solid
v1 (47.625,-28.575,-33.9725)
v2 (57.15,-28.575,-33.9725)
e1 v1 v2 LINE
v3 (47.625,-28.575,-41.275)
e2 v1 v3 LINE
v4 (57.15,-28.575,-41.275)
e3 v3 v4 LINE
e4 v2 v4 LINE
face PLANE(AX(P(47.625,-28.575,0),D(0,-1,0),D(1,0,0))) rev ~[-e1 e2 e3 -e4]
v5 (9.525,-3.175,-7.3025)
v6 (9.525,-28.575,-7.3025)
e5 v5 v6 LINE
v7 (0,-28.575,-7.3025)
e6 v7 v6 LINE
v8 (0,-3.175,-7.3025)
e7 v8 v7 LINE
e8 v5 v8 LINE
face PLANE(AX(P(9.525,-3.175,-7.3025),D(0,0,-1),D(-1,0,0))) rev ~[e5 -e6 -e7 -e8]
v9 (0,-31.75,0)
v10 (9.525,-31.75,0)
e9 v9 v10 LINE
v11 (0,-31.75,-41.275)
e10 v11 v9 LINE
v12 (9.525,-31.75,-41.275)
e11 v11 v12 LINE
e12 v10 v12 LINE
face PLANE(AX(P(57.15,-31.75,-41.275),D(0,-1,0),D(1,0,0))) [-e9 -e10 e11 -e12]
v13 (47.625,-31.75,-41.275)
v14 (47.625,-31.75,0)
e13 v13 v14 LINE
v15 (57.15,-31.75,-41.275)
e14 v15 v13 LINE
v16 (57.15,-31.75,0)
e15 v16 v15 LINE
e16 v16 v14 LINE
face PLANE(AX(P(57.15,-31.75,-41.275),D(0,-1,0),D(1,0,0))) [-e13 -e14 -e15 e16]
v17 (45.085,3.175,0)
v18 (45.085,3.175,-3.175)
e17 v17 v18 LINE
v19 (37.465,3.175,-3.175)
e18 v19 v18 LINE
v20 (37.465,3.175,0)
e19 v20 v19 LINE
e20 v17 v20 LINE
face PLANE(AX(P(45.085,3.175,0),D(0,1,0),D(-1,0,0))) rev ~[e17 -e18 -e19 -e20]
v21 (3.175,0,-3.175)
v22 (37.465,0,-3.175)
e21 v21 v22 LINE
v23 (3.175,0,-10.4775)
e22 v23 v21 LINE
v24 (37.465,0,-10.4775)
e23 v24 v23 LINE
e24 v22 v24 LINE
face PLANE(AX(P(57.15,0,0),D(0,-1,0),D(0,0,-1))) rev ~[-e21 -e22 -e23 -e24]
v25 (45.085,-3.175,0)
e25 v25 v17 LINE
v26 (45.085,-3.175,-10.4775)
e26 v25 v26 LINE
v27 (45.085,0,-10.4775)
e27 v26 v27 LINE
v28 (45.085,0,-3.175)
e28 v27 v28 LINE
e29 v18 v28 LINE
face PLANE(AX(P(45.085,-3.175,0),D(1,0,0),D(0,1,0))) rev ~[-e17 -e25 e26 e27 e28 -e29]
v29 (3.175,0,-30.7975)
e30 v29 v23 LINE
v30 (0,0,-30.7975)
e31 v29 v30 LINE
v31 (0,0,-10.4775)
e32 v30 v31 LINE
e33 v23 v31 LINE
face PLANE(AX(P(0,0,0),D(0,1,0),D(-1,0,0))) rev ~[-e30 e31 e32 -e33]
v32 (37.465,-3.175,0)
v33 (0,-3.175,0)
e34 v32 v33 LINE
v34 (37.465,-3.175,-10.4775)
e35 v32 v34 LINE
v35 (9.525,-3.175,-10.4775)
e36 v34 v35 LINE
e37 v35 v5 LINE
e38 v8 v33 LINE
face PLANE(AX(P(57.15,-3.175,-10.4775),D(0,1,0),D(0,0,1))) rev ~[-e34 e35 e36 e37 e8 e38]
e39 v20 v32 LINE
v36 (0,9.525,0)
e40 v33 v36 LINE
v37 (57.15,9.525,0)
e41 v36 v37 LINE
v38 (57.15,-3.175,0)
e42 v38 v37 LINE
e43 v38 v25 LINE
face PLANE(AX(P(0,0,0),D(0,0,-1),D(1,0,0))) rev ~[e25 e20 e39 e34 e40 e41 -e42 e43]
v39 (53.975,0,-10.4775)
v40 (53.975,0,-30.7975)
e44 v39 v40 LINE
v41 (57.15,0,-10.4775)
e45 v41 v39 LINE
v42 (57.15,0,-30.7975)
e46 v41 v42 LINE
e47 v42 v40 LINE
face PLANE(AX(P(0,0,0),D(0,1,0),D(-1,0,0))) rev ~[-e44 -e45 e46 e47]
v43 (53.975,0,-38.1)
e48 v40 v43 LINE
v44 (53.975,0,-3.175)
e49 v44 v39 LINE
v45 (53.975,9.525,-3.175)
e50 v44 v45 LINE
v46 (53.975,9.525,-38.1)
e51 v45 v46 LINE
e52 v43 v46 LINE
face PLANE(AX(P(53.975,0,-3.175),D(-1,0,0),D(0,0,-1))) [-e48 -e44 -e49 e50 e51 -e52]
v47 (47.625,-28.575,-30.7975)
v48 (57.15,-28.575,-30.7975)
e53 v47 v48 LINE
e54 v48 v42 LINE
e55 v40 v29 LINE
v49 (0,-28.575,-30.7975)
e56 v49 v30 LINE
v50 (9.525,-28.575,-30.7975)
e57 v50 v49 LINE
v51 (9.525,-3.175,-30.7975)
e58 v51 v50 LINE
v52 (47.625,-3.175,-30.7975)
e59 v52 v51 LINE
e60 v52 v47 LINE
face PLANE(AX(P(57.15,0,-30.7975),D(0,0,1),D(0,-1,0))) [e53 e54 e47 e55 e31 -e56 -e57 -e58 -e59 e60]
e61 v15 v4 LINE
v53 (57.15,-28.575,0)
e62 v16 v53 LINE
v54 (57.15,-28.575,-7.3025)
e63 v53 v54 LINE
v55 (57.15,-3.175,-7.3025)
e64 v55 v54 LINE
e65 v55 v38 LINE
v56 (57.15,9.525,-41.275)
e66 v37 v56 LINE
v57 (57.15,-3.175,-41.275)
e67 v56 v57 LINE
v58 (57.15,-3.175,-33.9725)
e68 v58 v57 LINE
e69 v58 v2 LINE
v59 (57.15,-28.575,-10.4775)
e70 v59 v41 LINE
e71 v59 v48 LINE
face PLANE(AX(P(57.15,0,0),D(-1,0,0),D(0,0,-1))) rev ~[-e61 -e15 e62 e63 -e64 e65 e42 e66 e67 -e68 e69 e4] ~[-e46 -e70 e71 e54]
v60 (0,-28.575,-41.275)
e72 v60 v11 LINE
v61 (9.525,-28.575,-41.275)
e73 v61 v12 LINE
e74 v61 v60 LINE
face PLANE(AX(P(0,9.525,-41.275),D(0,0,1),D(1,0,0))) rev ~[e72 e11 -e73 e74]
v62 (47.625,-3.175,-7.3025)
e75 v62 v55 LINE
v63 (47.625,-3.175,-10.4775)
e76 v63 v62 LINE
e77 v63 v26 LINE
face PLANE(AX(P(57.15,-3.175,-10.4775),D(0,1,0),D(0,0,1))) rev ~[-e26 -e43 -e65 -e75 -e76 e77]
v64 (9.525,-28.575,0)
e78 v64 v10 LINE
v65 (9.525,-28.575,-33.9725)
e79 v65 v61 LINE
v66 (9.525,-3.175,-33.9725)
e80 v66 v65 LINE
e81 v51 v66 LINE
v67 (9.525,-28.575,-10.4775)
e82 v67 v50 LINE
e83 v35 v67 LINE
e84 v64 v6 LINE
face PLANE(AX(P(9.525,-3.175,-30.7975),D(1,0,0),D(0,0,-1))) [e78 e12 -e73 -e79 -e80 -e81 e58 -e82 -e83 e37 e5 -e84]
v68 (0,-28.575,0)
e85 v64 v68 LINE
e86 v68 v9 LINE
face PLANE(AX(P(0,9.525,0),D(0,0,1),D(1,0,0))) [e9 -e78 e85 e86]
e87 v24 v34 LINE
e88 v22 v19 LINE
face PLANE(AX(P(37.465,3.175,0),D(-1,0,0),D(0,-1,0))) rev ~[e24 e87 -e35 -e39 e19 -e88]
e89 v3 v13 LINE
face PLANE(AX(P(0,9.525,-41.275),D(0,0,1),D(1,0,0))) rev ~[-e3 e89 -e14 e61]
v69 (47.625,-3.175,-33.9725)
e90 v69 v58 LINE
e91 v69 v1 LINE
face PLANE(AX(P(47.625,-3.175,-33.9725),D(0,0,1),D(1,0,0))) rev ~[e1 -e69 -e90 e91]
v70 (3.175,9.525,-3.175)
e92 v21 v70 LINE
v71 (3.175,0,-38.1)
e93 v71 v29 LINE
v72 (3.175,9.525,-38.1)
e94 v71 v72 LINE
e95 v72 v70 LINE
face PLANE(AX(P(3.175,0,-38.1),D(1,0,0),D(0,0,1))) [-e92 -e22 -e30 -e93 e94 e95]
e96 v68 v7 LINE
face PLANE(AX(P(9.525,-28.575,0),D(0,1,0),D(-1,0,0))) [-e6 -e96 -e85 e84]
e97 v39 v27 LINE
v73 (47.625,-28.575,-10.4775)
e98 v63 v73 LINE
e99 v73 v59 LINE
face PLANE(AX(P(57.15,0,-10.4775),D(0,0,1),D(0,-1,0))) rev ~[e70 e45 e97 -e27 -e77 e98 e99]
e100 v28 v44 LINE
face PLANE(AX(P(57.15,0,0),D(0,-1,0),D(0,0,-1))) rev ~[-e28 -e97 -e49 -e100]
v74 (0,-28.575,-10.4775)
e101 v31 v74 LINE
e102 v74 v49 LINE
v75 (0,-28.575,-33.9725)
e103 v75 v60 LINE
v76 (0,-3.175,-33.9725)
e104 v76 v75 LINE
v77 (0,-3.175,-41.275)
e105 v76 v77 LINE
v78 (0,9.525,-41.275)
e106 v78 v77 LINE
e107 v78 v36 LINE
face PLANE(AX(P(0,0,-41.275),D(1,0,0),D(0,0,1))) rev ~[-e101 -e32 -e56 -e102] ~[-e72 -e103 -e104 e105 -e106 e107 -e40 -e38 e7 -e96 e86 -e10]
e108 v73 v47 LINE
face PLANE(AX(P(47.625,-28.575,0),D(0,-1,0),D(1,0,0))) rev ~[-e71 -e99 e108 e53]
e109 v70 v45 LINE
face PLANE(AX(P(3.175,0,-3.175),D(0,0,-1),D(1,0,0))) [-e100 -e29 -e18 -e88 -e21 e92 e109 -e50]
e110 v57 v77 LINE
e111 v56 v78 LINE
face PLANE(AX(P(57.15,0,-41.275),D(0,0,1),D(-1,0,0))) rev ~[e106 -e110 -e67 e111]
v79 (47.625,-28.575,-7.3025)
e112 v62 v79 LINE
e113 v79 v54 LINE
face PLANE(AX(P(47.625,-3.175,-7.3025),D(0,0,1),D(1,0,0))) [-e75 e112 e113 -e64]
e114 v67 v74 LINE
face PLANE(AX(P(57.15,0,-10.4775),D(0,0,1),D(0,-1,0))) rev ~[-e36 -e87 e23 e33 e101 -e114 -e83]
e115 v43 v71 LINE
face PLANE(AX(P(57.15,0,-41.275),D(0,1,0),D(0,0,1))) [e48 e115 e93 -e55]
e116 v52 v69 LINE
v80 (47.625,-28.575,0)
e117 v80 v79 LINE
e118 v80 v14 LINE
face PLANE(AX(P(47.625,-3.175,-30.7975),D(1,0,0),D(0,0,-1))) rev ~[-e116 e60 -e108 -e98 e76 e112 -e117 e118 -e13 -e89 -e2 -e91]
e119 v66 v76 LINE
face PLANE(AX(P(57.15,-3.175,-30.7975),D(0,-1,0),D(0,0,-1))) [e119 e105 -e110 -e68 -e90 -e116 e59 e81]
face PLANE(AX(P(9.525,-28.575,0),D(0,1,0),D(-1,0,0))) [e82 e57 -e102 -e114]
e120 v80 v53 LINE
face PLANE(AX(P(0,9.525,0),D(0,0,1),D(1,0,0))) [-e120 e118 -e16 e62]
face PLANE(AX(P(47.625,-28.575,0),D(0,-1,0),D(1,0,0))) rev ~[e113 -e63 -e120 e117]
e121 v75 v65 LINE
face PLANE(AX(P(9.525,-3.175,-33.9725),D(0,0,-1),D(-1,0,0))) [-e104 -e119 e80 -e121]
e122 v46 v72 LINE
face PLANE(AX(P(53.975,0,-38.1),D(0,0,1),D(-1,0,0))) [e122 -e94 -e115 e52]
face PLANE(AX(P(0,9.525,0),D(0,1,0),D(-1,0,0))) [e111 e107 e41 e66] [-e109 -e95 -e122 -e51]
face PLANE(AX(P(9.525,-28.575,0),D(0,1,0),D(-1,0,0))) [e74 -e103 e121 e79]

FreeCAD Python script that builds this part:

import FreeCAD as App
import Part
import Sketcher

V = App.Vector
Q = App.Units.Quantity

doc = App.newDocument("Part")
body = doc.addObject("PartDesign::Body", "Body")

sketch1 = body.newObject("Sketcher::SketchObject", "Sketch")
sketch1.AttachmentSupport = (doc.getObject("XZ_Plane"), [""])
sketch1.MapMode = "FlatFace"
sketch1.addGeometry(Part.LineSegment(V(0, -41, 0), V(0, 0, 0)), False)
sketch1.addGeometry(Part.LineSegment(V(0, 0, 0), V(57, 0, 0)), False)
sketch1.addGeometry(Part.LineSegment(V(57, 0, 0), V(57, -41, 0)), False)
sketch1.addGeometry(Part.LineSegment(V(57, -41, 0), V(0, -41, 0)), False)
sketch1.addGeometry(Part.LineSegment(V(54, -3, 0), V(3, -3, 0)), False)
sketch1.addGeometry(Part.LineSegment(V(3, -3, 0), V(3, -38, 0)), False)
sketch1.addGeometry(Part.LineSegment(V(3, -38, 0), V(54, -38, 0)), False)
sketch1.addGeometry(Part.LineSegment(V(54, -38, 0), V(54, -3, 0)), False)
sketch1.addConstraint(Sketcher.Constraint("Coincident", 0, 2, 1, 1))
sketch1.addConstraint(Sketcher.Constraint("Coincident", 1, 2, 2, 1))
sketch1.addConstraint(Sketcher.Constraint("Coincident", 2, 2, 3, 1))
sketch1.addConstraint(Sketcher.Constraint("Coincident", 3, 2, 0, 1))
sketch1.addConstraint(Sketcher.Constraint("Coincident", 4, 2, 5, 1))
sketch1.addConstraint(Sketcher.Constraint("Coincident", 5, 2, 6, 1))
sketch1.addConstraint(Sketcher.Constraint("Coincident", 6, 2, 7, 1))
sketch1.addConstraint(Sketcher.Constraint("Coincident", 7, 2, 4, 1))
sketch1.addConstraint(Sketcher.Constraint("Vertical", 0))
sketch1.addConstraint(Sketcher.Constraint("Horizontal", 1))
sketch1.addConstraint(Sketcher.Constraint("Vertical", 2))
sketch1.addConstraint(Sketcher.Constraint("Horizontal", 3))
sketch1.addConstraint(Sketcher.Constraint("Horizontal", 4))
sketch1.addConstraint(Sketcher.Constraint("Vertical", 5))
sketch1.addConstraint(Sketcher.Constraint("Horizontal", 6))
sketch1.addConstraint(Sketcher.Constraint("Vertical", 7))
sketch1.addConstraint(Sketcher.Constraint("Coincident", 0, 2, -1, 1))
sketch1.addConstraint(Sketcher.Constraint("DistanceX", 1, 1, 1, 2, Q("2.25 in")))
sketch1.addConstraint(Sketcher.Constraint("DistanceX", 4, 2, 4, 1, Q("2 in")))
sketch1.addConstraint(Sketcher.Constraint("DistanceY", 0, 1, 0, 2, Q("1.625 in")))
sketch1.addConstraint(Sketcher.Constraint("DistanceX", -1, 1, 4, 2, Q("0.125 in")))
sketch1.addConstraint(Sketcher.Constraint("DistanceY", 4, 2, -1, 1, Q("0.125 in")))
sketch1.addConstraint(Sketcher.Constraint("DistanceY", 3, 2, 5, 2, Q("0.125 in")))
pad1 = body.newObject("PartDesign::Pad", "Pad")
pad1.Profile = sketch1
pad1.Length = Q("0.375 in")
pad1.Reversed = True

sketch2 = body.newObject("Sketcher::SketchObject", "Sketch001")
sketch2.AttachmentSupport = (doc.getObject("YZ_Plane"), [""])
sketch2.MapMode = "FlatFace"
sketch2.AttachmentOffset = App.Placement(V(0, 0, 2.25 * 25.4), App.Rotation())
sketch2.addGeometry(Part.LineSegment(V(0, -10.5, 0), V(0, 0, 0)), False)
sketch2.addGeometry(Part.LineSegment(V(0, 0, 0), V(-3.2, 0, 0)), False)
sketch2.addGeometry(Part.LineSegment(V(-3.2, 0, 0), V(-3.2, -10.5, 0)), False)
sketch2.addGeometry(Part.LineSegment(V(-3.2, -10.5, 0), V(0, -10.5, 0)), False)
sketch2.addGeometry(Part.LineSegment(V(-3.2, -41.3, 0), V(0, -41.3, 0)), False)
sketch2.addGeometry(Part.LineSegment(V(0, -41.3, 0), V(0, -30.8, 0)), False)
sketch2.addGeometry(Part.LineSegment(V(0, -30.8, 0), V(-3.2, -30.8, 0)), False)
sketch2.addGeometry(Part.LineSegment(V(-3.2, -30.8, 0), V(-3.2, -41.3, 0)), False)
sketch2.addConstraint(Sketcher.Constraint("Coincident", 0, 2, 1, 1))
sketch2.addConstraint(Sketcher.Constraint("Coincident", 1, 2, 2, 1))
sketch2.addConstraint(Sketcher.Constraint("Coincident", 2, 2, 3, 1))
sketch2.addConstraint(Sketcher.Constraint("Coincident", 3, 2, 0, 1))
sketch2.addConstraint(Sketcher.Constraint("Coincident", 4, 2, 5, 1))
sketch2.addConstraint(Sketcher.Constraint("Coincident", 5, 2, 6, 1))
sketch2.addConstraint(Sketcher.Constraint("Coincident", 6, 2, 7, 1))
sketch2.addConstraint(Sketcher.Constraint("Coincident", 7, 2, 4, 1))
sketch2.addConstraint(Sketcher.Constraint("Vertical", 0))
sketch2.addConstraint(Sketcher.Constraint("Horizontal", 1))
sketch2.addConstraint(Sketcher.Constraint("Vertical", 2))
sketch2.addConstraint(Sketcher.Constraint("Horizontal", 3))
sketch2.addConstraint(Sketcher.Constraint("Horizontal", 4))
sketch2.addConstraint(Sketcher.Constraint("Vertical", 5))
sketch2.addConstraint(Sketcher.Constraint("Horizontal", 6))
sketch2.addConstraint(Sketcher.Constraint("Vertical", 7))
sketch2.addConstraint(Sketcher.Constraint("Coincident", 0, 2, -1, 1))
sketch2.addConstraint(Sketcher.Constraint("PointOnObject", 4, 2, -2))
sketch2.addConstraint(Sketcher.Constraint("Vertical", 2, 2, 6, 2))
sketch2.addConstraint(Sketcher.Constraint("Equal", 2, 5))
sketch2.addConstraint(Sketcher.Constraint("DistanceY", 5, 2, 3, 2, Q("0.8 in")))
sketch2.addConstraint(Sketcher.Constraint("DistanceX", 1, 2, 1, 1, Q("0.125 in")))
sketch2.addConstraint(Sketcher.Constraint("DistanceY", 0, 1, 0, 2, Q("0.4125 in")))
pad2 = body.newObject("PartDesign::Pad", "Pad001")
pad2.Profile = sketch2
pad2.Length = Q("2.25 in")
pad2.Reversed = True

sketch3 = body.newObject("Sketcher::SketchObject", "Sketch002")
sketch3.AttachmentSupport = (doc.getObject("XY_Plane"), [""])
sketch3.MapMode = "FlatFace"
sketch3.addGeometry(Part.LineSegment(V(37, -3, 0), V(45, -3, 0)), False)
sketch3.addGeometry(Part.LineSegment(V(45, -3, 0), V(45, 3, 0)), False)
sketch3.addGeometry(Part.LineSegment(V(45, 3, 0), V(37, 3, 0)), False)
sketch3.addGeometry(Part.LineSegment(V(37, 3, 0), V(37, -3, 0)), False)
sketch3.addConstraint(Sketcher.Constraint("Coincident", 0, 2, 1, 1))
sketch3.addConstraint(Sketcher.Constraint("Coincident", 1, 2, 2, 1))
sketch3.addConstraint(Sketcher.Constraint("Coincident", 2, 2, 3, 1))
sketch3.addConstraint(Sketcher.Constraint("Coincident", 3, 2, 0, 1))
sketch3.addConstraint(Sketcher.Constraint("Horizontal", 0))
sketch3.addConstraint(Sketcher.Constraint("Vertical", 1))
sketch3.addConstraint(Sketcher.Constraint("Horizontal", 2))
sketch3.addConstraint(Sketcher.Constraint("Vertical", 3))
sketch3.addConstraint(Sketcher.Constraint("DistanceY", 1, 1, 1, 2, Q("0.25 in")))
sketch3.addConstraint(Sketcher.Constraint("DistanceX", 0, 1, 0, 2, Q("0.3 in")))
sketch3.addConstraint(Sketcher.Constraint("DistanceX", -1, 1, 0, 2, Q("1.775 in")))
sketch3.addConstraint(Sketcher.Constraint("DistanceY", 0, 2, -1, 1, Q("0.125 in")))
pocket1 = body.newObject("PartDesign::Pocket", "Pocket")
pocket1.Profile = sketch3
pocket1.Length = Q("0.4125 in")

sketch4 = body.newObject("Sketcher::SketchObject", "Sketch003")
sketch4.AttachmentSupport = (doc.getObject("XZ_Plane"), [""])
sketch4.MapMode = "FlatFace"
sketch4.AttachmentOffset = App.Placement(V(0, 0, 0.125 * 25.4), App.Rotation())
sketch4.addGeometry(Part.LineSegment(V(57.1, -30.8, 0), V(47.6, -30.8, 0)), False)
sketch4.addGeometry(Part.LineSegment(V(47.6, -30.8, 0), V(47.6, -34, 0)), False)
sketch4.addGeometry(Part.LineSegment(V(47.6, -34, 0), V(57.1, -34, 0)), False)
sketch4.addGeometry(Part.LineSegment(V(57.1, -34, 0), V(57.1, -30.8, 0)), False)
sketch4.addGeometry(Part.LineSegment(V(47.6, -10.5, 0), V(57.1, -10.5, 0)), False)
sketch4.addGeometry(Part.LineSegment(V(57.1, -10.5, 0), V(57.1, -7.3, 0)), False)
sketch4.addGeometry(Part.LineSegment(V(57.1, -7.3, 0), V(47.6, -7.3, 0)), False)
sketch4.addGeometry(Part.LineSegment(V(47.6, -7.3, 0), V(47.6, -10.5, 0)), False)
sketch4.addGeometry(Part.LineSegment(V(9.5, -30.8, 0), V(0, -30.8, 0)), False)
sketch4.addGeometry(Part.LineSegment(V(0, -30.8, 0), V(0, -34, 0)), False)
sketch4.addGeometry(Part.LineSegment(V(0, -34, 0), V(9.5, -34, 0)), False)
sketch4.addGeometry(Part.LineSegment(V(9.5, -34, 0), V(9.5, -30.8, 0)), False)
sketch4.addGeometry(Part.LineSegment(V(0, -7.3, 0), V(0, -10.5, 0)), False)
sketch4.addGeometry(Part.LineSegment(V(0, -10.5, 0), V(9.5, -10.5, 0)), False)
sketch4.addGeometry(Part.LineSegment(V(9.5, -10.5, 0), V(9.5, -7.3, 0)), False)
sketch4.addGeometry(Part.LineSegment(V(9.5, -7.3, 0), V(0, -7.3, 0)), False)
sketch4.addConstraint(Sketcher.Constraint("Coincident", 0, 2, 1, 1))
sketch4.addConstraint(Sketcher.Constraint("Coincident", 1, 2, 2, 1))
sketch4.addConstraint(Sketcher.Constraint("Coincident", 2, 2, 3, 1))
sketch4.addConstraint(Sketcher.Constraint("Coincident", 3, 2, 0, 1))
sketch4.addConstraint(Sketcher.Constraint("Coincident", 4, 2, 5, 1))
sketch4.addConstraint(Sketcher.Constraint("Coincident", 5, 2, 6, 1))
sketch4.addConstraint(Sketcher.Constraint("Coincident", 6, 2, 7, 1))
sketch4.addConstraint(Sketcher.Constraint("Coincident", 7, 2, 4, 1))
sketch4.addConstraint(Sketcher.Constraint("Coincident", 8, 2, 9, 1))
sketch4.addConstraint(Sketcher.Constraint("Coincident", 9, 2, 10, 1))
sketch4.addConstraint(Sketcher.Constraint("Coincident", 10, 2, 11, 1))
sketch4.addConstraint(Sketcher.Constraint("Coincident", 11, 2, 8, 1))
sketch4.addConstraint(Sketcher.Constraint("Coincident", 12, 2, 13, 1))
sketch4.addConstraint(Sketcher.Constraint("Coincident", 13, 2, 14, 1))
sketch4.addConstraint(Sketcher.Constraint("Coincident", 14, 2, 15, 1))
sketch4.addConstraint(Sketcher.Constraint("Coincident", 15, 2, 12, 1))
sketch4.addConstraint(Sketcher.Constraint("Horizontal", 0))
sketch4.addConstraint(Sketcher.Constraint("Vertical", 1))
sketch4.addConstraint(Sketcher.Constraint("Horizontal", 2))
sketch4.addConstraint(Sketcher.Constraint("Vertical", 3))
sketch4.addConstraint(Sketcher.Constraint("Horizontal", 4))
sketch4.addConstraint(Sketcher.Constraint("Vertical", 5))
sketch4.addConstraint(Sketcher.Constraint("Horizontal", 6))
sketch4.addConstraint(Sketcher.Constraint("Vertical", 7))
sketch4.addConstraint(Sketcher.Constraint("Horizontal", 8))
sketch4.addConstraint(Sketcher.Constraint("Vertical", 9))
sketch4.addConstraint(Sketcher.Constraint("Horizontal", 10))
sketch4.addConstraint(Sketcher.Constraint("Vertical", 11))
sketch4.addConstraint(Sketcher.Constraint("Vertical", 12))
sketch4.addConstraint(Sketcher.Constraint("Horizontal", 13))
sketch4.addConstraint(Sketcher.Constraint("Vertical", 14))
sketch4.addConstraint(Sketcher.Constraint("Horizontal", 15))
sketch4.addConstraint(Sketcher.Constraint("PointOnObject", 8, 2, -2))
sketch4.addConstraint(Sketcher.Constraint("PointOnObject", 12, 2, -2))
sketch4.addConstraint(Sketcher.Constraint("Horizontal", 3, 2, 8, 2))
sketch4.addConstraint(Sketcher.Constraint("Horizontal", 2, 2, 9, 2))
sketch4.addConstraint(Sketcher.Constraint("Horizontal", 7, 2, 12, 2))
sketch4.addConstraint(Sketcher.Constraint("Horizontal", 6, 2, 14, 2))
sketch4.addConstraint(Sketcher.Constraint("Vertical", 3, 2, 4, 2))
sketch4.addConstraint(Sketcher.Constraint("Vertical", 1, 2, 6, 2))
sketch4.addConstraint(Sketcher.Constraint("Vertical", 11, 2, 13, 2))
sketch4.addConstraint(Sketcher.Constraint("Equal", 6, 8))
sketch4.addConstraint(Sketcher.Constraint("Equal", 3, 5))
sketch4.addConstraint(Sketcher.Constraint("DistanceX", 0, 2, 0, 1, Q("0.375 in")))
sketch4.addConstraint(Sketcher.Constraint("DistanceY", 1, 2, 1, 1, Q("0.125 in")))
sketch4.addConstraint(Sketcher.Constraint("DistanceY", 3, 2, 4, 2, Q("0.8 in")))
sketch4.addConstraint(Sketcher.Constraint("DistanceX", 10, 2, 1, 2, Q("1.5 in")))
sketch4.addConstraint(Sketcher.Constraint("DistanceY", 0, 2, -1, 1, Q("1.2125 in")))
pad3 = body.newObject("PartDesign::Pad", "Pad002")
pad3.Profile = sketch4
pad3.Length = Q("1.125 in")

sketch5 = body.newObject("Sketcher::SketchObject", "Sketch004")
sketch5.AttachmentSupport = (doc.getObject("XY_Plane"), [""])
sketch5.MapMode = "FlatFace"
sketch5.addGeometry(Part.LineSegment(V(9.5, -28.6, 0), V(0, -28.6, 0)), False)
sketch5.addGeometry(Part.LineSegment(V(0, -28.6, 0), V(0, -31.8, 0)), False)
sketch5.addGeometry(Part.LineSegment(V(0, -31.8, 0), V(9.5, -31.8, 0)), False)
sketch5.addGeometry(Part.LineSegment(V(9.5, -31.8, 0), V(9.5, -28.6, 0)), False)
sketch5.addGeometry(Part.LineSegment(V(47.6, -31.8, 0), V(57.1, -31.8, 0)), False)
sketch5.addGeometry(Part.LineSegment(V(57.1, -31.8, 0), V(57.1, -28.6, 0)), False)
sketch5.addGeometry(Part.LineSegment(V(57.1, -28.6, 0), V(47.6, -28.6, 0)), False)
sketch5.addGeometry(Part.LineSegment(V(47.6, -28.6, 0), V(47.6, -31.8, 0)), False)
sketch5.addConstraint(Sketcher.Constraint("Coincident", 0, 2, 1, 1))
sketch5.addConstraint(Sketcher.Constraint("Coincident", 1, 2, 2, 1))
sketch5.addConstraint(Sketcher.Constraint("Coincident", 2, 2, 3, 1))
sketch5.addConstraint(Sketcher.Constraint("Coincident", 3, 2, 0, 1))
sketch5.addConstraint(Sketcher.Constraint("Coincident", 4, 2, 5, 1))
sketch5.addConstraint(Sketcher.Constraint("Coincident", 5, 2, 6, 1))
sketch5.addConstraint(Sketcher.Constraint("Coincident", 6, 2, 7, 1))
sketch5.addConstraint(Sketcher.Constraint("Coincident", 7, 2, 4, 1))
sketch5.addConstraint(Sketcher.Constraint("Horizontal", 0))
sketch5.addConstraint(Sketcher.Constraint("Vertical", 1))
sketch5.addConstraint(Sketcher.Constraint("Horizontal", 2))
sketch5.addConstraint(Sketcher.Constraint("Vertical", 3))
sketch5.addConstraint(Sketcher.Constraint("Horizontal", 4))
sketch5.addConstraint(Sketcher.Constraint("Vertical", 5))
sketch5.addConstraint(Sketcher.Constraint("Horizontal", 6))
sketch5.addConstraint(Sketcher.Constraint("Vertical", 7))
sketch5.addConstraint(Sketcher.Constraint("PointOnObject", 0, 2, -2))
sketch5.addConstraint(Sketcher.Constraint("Horizontal", 2, 2, 4, 2))
sketch5.addConstraint(Sketcher.Constraint("Horizontal", 3, 2, 5, 2))
sketch5.addConstraint(Sketcher.Constraint("Equal", 2, 4))
sketch5.addConstraint(Sketcher.Constraint("DistanceY", 1, 2, 1, 1, Q("0.125 in")))
sketch5.addConstraint(Sketcher.Constraint("DistanceX", 3, 2, 6, 2, Q("1.5 in")))
sketch5.addConstraint(Sketcher.Constraint("DistanceX", 0, 2, 0, 1, Q("0.375 in")))
sketch5.addConstraint(Sketcher.Constraint("DistanceY", 1, 2, -1, 1, Q("1.25 in")))
pad4 = body.newObject("PartDesign::Pad", "Pad003")
pad4.Profile = sketch5
pad4.Length = Q("1.625 in")
pad4.Reversed = True

doc.recompute()
